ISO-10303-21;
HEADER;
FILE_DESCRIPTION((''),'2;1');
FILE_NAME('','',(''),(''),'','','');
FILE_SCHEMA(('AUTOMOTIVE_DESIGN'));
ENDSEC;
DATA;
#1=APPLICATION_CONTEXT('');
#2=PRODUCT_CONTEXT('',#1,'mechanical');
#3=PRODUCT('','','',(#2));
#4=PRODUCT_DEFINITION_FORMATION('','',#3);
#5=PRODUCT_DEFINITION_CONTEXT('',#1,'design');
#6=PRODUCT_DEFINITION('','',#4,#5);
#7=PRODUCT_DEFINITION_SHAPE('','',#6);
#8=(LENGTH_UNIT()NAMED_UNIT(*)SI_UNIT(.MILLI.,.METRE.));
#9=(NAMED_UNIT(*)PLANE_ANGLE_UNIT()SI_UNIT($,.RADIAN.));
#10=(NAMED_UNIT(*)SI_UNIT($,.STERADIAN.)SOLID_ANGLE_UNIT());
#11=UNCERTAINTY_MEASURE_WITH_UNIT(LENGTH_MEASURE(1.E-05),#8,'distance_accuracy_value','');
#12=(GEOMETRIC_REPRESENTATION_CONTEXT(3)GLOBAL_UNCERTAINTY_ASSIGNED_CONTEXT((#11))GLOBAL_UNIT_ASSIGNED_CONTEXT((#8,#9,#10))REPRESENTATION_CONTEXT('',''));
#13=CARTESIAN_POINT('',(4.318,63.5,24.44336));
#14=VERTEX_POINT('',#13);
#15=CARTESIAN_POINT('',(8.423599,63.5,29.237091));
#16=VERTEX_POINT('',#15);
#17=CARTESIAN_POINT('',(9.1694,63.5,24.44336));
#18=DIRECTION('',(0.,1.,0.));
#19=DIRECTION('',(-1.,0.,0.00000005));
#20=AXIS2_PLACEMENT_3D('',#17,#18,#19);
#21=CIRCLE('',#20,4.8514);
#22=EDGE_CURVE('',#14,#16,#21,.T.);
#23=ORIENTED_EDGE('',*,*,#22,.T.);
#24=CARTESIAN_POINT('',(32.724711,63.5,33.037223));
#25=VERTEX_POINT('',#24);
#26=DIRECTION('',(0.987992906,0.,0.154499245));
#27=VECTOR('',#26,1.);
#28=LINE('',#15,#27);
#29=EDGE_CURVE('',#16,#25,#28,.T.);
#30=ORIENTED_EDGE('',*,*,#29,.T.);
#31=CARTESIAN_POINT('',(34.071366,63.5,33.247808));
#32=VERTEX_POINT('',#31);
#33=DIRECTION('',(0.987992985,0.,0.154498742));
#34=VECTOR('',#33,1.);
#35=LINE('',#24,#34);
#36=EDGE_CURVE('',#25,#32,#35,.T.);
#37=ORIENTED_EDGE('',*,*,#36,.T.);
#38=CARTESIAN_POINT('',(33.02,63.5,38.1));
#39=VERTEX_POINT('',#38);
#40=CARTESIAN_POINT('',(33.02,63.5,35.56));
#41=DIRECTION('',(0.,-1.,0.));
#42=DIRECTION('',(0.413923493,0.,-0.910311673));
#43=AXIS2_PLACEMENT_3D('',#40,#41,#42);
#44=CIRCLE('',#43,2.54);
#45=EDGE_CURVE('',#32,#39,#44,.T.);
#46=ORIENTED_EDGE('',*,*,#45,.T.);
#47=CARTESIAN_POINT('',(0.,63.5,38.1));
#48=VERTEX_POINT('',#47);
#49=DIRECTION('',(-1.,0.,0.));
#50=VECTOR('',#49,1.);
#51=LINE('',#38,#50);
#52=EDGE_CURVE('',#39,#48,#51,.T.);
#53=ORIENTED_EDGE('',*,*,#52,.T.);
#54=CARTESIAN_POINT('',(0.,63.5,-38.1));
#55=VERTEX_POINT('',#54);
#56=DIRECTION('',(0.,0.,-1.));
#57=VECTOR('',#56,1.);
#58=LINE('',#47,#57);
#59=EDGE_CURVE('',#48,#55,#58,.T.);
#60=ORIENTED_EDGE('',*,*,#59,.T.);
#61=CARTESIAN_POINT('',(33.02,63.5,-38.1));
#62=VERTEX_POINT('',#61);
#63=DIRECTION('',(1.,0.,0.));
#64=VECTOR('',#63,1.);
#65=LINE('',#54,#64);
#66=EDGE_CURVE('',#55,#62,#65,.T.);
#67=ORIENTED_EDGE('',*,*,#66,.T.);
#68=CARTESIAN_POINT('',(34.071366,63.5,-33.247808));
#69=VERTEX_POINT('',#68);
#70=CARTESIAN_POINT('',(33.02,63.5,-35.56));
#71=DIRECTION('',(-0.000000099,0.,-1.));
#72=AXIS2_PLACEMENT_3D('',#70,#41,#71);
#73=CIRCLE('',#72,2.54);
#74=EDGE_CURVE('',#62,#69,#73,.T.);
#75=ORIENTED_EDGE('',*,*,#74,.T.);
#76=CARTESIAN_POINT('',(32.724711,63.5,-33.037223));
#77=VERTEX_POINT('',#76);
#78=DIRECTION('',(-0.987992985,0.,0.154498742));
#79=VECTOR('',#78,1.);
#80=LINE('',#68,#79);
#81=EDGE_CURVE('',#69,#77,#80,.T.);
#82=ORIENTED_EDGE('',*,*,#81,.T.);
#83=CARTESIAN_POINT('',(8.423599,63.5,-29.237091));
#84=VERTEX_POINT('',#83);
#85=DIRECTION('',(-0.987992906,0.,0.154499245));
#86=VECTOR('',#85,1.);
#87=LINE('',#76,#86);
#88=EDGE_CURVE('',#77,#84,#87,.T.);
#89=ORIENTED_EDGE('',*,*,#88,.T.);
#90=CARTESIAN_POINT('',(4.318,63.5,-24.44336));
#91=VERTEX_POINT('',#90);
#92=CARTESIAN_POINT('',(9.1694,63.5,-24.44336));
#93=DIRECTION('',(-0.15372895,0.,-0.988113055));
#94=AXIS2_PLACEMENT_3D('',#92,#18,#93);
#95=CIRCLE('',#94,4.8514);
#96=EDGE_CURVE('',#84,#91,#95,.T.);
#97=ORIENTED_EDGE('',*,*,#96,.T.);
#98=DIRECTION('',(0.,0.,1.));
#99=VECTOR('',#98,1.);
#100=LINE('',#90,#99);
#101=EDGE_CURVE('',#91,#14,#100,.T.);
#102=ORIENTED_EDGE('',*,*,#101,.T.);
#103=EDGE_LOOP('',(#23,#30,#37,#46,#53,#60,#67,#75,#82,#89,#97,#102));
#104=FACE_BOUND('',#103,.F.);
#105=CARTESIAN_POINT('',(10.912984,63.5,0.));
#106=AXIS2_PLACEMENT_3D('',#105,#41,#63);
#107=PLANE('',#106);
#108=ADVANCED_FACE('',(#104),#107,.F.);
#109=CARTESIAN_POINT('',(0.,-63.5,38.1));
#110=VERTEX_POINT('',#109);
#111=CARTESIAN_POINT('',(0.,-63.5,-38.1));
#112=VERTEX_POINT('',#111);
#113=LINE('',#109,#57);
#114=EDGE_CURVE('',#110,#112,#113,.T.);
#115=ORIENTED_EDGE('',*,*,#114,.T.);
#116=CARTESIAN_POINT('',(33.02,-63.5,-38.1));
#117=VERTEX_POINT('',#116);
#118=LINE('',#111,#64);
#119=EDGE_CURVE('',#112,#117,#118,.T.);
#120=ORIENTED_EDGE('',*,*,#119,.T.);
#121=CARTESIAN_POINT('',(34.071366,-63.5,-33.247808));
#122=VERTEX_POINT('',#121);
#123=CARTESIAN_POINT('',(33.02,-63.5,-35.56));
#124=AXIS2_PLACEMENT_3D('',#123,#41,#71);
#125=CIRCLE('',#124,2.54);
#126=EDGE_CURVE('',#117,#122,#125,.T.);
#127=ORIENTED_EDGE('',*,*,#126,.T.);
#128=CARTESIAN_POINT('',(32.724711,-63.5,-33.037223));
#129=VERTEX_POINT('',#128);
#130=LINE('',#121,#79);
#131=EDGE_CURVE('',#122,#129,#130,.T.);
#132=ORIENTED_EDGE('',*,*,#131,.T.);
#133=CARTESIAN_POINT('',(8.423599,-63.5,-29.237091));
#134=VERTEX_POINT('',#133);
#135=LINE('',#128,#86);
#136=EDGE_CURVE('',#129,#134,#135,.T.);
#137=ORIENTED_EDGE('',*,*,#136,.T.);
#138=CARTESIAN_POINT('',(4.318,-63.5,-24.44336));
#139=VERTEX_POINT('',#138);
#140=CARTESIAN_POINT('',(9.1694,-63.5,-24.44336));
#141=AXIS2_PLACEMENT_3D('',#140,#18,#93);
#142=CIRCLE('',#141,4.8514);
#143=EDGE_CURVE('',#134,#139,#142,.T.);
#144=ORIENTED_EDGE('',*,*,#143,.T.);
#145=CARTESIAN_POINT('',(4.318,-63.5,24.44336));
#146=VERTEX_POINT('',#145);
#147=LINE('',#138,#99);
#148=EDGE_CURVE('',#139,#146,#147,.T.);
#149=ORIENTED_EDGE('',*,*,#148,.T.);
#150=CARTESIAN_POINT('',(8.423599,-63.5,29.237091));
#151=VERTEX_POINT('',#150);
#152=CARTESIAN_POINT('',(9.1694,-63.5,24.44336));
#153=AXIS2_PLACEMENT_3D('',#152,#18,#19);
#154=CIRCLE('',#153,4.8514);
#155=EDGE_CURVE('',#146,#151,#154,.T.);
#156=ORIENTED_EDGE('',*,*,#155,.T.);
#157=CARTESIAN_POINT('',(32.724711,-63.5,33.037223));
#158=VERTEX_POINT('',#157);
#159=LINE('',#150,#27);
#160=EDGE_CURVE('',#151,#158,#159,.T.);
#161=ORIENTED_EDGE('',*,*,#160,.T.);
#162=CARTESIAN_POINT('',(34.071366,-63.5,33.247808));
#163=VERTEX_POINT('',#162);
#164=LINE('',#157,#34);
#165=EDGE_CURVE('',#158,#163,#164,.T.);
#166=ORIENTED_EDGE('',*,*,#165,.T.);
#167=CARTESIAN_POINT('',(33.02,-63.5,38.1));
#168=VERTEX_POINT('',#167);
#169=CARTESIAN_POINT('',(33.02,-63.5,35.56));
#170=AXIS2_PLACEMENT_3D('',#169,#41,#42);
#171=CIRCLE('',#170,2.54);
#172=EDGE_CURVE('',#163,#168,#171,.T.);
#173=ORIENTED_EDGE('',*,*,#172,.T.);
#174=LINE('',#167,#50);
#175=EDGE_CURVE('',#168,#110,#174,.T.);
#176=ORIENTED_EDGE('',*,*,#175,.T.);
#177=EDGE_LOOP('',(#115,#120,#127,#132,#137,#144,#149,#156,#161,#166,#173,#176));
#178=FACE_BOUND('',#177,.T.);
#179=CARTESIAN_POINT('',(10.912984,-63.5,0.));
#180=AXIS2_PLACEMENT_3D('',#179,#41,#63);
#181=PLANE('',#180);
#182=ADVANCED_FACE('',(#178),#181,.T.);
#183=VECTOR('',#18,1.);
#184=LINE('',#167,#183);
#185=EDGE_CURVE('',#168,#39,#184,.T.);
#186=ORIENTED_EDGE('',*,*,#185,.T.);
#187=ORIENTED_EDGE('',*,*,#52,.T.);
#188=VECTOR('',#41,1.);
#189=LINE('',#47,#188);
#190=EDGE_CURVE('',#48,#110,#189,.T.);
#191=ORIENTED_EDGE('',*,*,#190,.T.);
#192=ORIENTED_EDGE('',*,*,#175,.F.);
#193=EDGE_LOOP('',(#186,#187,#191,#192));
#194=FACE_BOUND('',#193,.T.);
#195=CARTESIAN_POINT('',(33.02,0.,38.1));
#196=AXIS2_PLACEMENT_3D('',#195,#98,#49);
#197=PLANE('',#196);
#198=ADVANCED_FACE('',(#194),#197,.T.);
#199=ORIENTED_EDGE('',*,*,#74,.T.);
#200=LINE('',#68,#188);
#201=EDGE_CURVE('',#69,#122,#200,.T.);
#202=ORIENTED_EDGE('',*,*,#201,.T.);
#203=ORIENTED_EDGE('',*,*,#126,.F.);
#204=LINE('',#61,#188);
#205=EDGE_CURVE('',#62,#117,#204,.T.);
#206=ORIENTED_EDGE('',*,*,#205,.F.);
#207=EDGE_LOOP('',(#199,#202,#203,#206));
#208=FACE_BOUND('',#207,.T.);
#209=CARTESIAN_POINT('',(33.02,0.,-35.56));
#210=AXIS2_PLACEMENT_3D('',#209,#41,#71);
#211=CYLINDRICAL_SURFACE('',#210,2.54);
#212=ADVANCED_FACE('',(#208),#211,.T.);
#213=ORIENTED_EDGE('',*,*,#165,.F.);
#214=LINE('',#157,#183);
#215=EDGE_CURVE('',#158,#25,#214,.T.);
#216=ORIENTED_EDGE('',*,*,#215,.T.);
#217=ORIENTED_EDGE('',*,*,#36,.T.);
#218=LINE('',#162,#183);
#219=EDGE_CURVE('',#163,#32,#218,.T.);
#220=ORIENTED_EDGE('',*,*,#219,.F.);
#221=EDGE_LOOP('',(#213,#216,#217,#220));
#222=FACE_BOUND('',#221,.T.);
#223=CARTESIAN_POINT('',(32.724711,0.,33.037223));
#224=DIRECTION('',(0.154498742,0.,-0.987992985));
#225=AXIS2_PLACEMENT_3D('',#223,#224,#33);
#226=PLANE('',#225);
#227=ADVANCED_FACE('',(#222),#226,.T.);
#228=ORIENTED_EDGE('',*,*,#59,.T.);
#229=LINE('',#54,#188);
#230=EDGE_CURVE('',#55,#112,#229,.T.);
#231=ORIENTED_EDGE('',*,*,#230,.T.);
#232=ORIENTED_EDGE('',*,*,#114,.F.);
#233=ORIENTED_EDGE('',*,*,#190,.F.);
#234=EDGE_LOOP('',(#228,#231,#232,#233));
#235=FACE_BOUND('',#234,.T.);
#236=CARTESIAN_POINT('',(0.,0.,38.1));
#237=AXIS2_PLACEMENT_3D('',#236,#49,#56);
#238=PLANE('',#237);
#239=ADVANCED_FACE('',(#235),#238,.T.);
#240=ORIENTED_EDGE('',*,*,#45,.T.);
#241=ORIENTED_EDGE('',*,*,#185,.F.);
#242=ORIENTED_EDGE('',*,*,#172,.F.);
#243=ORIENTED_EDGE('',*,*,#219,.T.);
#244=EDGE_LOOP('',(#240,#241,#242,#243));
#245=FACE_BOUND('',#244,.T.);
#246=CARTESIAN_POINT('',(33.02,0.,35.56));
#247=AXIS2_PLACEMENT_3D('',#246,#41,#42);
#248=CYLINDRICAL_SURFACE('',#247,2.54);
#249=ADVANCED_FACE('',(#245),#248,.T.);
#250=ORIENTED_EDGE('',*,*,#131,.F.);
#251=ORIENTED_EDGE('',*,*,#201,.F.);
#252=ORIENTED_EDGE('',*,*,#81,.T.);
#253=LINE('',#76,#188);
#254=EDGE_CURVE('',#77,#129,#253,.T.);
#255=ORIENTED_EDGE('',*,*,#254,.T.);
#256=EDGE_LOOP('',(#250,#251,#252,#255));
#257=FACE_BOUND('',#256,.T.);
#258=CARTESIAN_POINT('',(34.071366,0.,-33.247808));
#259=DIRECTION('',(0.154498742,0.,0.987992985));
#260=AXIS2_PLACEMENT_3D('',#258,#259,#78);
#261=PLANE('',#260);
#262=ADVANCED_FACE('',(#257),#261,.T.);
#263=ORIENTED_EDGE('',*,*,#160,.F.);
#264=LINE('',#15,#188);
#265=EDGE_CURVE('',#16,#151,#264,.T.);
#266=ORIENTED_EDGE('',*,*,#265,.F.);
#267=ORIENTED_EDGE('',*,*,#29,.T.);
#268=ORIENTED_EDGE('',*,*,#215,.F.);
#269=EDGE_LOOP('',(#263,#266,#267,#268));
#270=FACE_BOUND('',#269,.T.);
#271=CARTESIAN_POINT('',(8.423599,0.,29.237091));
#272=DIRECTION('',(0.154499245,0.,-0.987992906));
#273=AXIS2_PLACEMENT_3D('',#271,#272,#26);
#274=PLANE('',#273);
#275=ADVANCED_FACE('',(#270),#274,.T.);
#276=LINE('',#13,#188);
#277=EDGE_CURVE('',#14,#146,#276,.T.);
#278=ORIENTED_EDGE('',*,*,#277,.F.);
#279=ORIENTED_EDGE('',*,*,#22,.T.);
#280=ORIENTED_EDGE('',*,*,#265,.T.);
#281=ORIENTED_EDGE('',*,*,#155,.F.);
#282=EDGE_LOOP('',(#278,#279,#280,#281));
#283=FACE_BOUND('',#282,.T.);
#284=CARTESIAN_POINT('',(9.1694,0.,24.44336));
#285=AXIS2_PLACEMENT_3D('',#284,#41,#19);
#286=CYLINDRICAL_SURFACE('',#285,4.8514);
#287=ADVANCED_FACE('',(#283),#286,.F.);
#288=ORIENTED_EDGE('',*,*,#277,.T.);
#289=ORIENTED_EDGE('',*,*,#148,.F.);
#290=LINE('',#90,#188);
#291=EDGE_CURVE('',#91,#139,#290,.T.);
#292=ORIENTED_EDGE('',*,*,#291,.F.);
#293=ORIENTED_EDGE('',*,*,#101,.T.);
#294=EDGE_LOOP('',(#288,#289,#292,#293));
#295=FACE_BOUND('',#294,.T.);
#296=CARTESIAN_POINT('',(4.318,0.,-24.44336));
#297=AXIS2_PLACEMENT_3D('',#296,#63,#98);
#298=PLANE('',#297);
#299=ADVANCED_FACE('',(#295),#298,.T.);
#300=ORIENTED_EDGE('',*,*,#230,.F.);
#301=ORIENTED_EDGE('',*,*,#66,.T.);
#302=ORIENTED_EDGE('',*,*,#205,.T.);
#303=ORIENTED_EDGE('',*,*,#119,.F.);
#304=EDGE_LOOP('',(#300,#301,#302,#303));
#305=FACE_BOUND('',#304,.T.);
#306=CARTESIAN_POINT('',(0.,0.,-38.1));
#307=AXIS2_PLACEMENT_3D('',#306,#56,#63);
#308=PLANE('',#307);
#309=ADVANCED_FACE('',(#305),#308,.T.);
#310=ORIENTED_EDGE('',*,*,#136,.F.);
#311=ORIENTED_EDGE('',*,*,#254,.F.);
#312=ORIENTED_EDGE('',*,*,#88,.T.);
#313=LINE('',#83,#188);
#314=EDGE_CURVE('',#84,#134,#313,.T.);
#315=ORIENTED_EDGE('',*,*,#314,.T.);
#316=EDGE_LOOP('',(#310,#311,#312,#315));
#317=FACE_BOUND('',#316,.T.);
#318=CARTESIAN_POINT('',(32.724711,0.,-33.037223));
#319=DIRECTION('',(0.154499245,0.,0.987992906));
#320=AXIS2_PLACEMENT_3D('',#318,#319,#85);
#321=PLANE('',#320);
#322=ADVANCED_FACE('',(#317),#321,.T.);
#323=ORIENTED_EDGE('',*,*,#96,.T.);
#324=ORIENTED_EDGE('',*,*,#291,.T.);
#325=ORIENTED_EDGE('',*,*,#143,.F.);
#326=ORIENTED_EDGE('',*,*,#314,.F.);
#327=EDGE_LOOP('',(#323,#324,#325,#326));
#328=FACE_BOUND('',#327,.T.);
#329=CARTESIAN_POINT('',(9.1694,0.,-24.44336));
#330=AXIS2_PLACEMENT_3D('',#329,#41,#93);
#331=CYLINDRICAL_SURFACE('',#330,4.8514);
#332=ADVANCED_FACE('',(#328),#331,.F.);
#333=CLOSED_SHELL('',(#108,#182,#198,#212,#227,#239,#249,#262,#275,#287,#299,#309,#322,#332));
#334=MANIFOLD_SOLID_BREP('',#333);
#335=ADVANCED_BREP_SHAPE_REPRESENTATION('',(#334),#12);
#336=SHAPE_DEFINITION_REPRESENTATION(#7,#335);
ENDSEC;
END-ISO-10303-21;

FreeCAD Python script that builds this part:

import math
import FreeCAD as App
import Part
import Sketcher
from FreeCAD import Vector
Q = App.Units.Quantity

doc = App.newDocument("Part")
body = doc.addObject("PartDesign::Body", "Body")

# Sketch on XZ plane
sketch1 = body.newObject("Sketcher::SketchObject", "Sketch")
sketch1.AttachmentSupport = (doc.getObject("XZ_Plane"), [""])
sketch1.MapMode = "FlatFace"
sketch1.addGeometry([
    Part.LineSegment(Vector(33, 38.1, 0), Vector(0, 38.1, 0)),  # 0
    Part.LineSegment(Vector(0, 38.1, 0), Vector(0, -38.1, 0)),  # 1
    Part.LineSegment(Vector(0, -38.1, 0), Vector(33, -38.1, 0)),  # 2
    Part.ArcOfCircle(Part.Circle(Vector(33, -35.6, 0), Vector(0, 0, 1), 2.5), math.radians(-90), math.radians(66)),  # 3
    Part.LineSegment(Vector(34.1, -33.2, 0), Vector(32.7, -33, 0)),  # 4
    Part.LineSegment(Vector(32.7, -33, 0), Vector(8.4, -29.2, 0)),  # 5
    Part.ArcOfCircle(Part.Circle(Vector(9.2, -24.4, 0), Vector(0, 0, 1), 4.9), math.radians(-180), math.radians(-99)),  # 6
    Part.LineSegment(Vector(4.3, -24.4, 0), Vector(4.3, 24.4, 0)),  # 7
    Part.ArcOfCircle(Part.Circle(Vector(9.2, 24.4, 0), Vector(0, 0, 1), 4.9), math.radians(99), math.radians(180)),  # 8
    Part.LineSegment(Vector(8.4, 29.2, 0), Vector(32.7, 33, 0)),  # 9
    Part.LineSegment(Vector(32.7, 33, 0), Vector(34.1, 33.2, 0)),  # 10
    Part.ArcOfCircle(Part.Circle(Vector(33, 35.6, 0), Vector(0, 0, 1), 2.5), math.radians(-66), math.radians(90)),  # 11
], False)
sketch1.addConstraint([
    Sketcher.Constraint("Coincident", 0, 2, 1, 1),
    Sketcher.Constraint("Coincident", 1, 2, 2, 1),
    Sketcher.Constraint("Tangent", 2, 2, 3, 1),
    Sketcher.Constraint("Coincident", 3, 2, 4, 1),
    Sketcher.Constraint("Coincident", 4, 2, 5, 1),
    Sketcher.Constraint("Coincident", 5, 2, 6, 2),
    Sketcher.Constraint("Tangent", 6, 1, 7, 1),
    Sketcher.Constraint("Tangent", 7, 2, 8, 2),
    Sketcher.Constraint("Coincident", 8, 1, 9, 1),
    Sketcher.Constraint("Coincident", 9, 2, 10, 1),
    Sketcher.Constraint("Coincident", 10, 2, 11, 1),
    Sketcher.Constraint("Tangent", 11, 2, 0, 1),
    Sketcher.Constraint("Horizontal", 0),
    Sketcher.Constraint("Vertical", 1),
    Sketcher.Constraint("Horizontal", 2),
    Sketcher.Constraint("Vertical", 7),
    Sketcher.Constraint("Equal", 6, 8),
    Sketcher.Constraint("Equal", 3, 11),
    Sketcher.Constraint("Symmetric", 0, 2, 1, 2, -1, 1),
    Sketcher.Constraint("Symmetric", 5, 2, 8, 1, -1),
    Sketcher.Constraint("Symmetric", 4, 2, 9, 2, -1),
    Sketcher.Constraint("Symmetric", 3, 2, 10, 2, -1),
    Sketcher.Constraint("Parallel", 4, 5),
    Sketcher.Constraint("Radius", 3, Q("0.1 in")),
    Sketcher.Constraint("DistanceY", 1, 2, 1, 1, Q("3 in")),
    Sketcher.Constraint("DistanceX", 0, 2, 0, 1, Q("1.3 in")),
    Sketcher.Constraint("Radius", 6, Q("0.191 in")),
    Sketcher.Constraint("DistanceX", -1, 1, 6, 1, Q("0.17 in")),
    Sketcher.Constraint("DistanceY", 7, 1, 7, 2, Q("48.88672 mm")),
    Sketcher.Constraint("DistanceX", -1, 1, 5, 2, Q("8.423599 mm")),
    Sketcher.Constraint("Distance", 4, Q("1.363021 mm")),
    Sketcher.Constraint("DistanceX", -1, 1, 4, 2, Q("32.724711 mm")),
])
pad1 = body.newObject("PartDesign::Pad", "Pad")
pad1.Profile = sketch1
pad1.Length = Q("5 in")
pad1.Midplane = True

doc.recompute()
